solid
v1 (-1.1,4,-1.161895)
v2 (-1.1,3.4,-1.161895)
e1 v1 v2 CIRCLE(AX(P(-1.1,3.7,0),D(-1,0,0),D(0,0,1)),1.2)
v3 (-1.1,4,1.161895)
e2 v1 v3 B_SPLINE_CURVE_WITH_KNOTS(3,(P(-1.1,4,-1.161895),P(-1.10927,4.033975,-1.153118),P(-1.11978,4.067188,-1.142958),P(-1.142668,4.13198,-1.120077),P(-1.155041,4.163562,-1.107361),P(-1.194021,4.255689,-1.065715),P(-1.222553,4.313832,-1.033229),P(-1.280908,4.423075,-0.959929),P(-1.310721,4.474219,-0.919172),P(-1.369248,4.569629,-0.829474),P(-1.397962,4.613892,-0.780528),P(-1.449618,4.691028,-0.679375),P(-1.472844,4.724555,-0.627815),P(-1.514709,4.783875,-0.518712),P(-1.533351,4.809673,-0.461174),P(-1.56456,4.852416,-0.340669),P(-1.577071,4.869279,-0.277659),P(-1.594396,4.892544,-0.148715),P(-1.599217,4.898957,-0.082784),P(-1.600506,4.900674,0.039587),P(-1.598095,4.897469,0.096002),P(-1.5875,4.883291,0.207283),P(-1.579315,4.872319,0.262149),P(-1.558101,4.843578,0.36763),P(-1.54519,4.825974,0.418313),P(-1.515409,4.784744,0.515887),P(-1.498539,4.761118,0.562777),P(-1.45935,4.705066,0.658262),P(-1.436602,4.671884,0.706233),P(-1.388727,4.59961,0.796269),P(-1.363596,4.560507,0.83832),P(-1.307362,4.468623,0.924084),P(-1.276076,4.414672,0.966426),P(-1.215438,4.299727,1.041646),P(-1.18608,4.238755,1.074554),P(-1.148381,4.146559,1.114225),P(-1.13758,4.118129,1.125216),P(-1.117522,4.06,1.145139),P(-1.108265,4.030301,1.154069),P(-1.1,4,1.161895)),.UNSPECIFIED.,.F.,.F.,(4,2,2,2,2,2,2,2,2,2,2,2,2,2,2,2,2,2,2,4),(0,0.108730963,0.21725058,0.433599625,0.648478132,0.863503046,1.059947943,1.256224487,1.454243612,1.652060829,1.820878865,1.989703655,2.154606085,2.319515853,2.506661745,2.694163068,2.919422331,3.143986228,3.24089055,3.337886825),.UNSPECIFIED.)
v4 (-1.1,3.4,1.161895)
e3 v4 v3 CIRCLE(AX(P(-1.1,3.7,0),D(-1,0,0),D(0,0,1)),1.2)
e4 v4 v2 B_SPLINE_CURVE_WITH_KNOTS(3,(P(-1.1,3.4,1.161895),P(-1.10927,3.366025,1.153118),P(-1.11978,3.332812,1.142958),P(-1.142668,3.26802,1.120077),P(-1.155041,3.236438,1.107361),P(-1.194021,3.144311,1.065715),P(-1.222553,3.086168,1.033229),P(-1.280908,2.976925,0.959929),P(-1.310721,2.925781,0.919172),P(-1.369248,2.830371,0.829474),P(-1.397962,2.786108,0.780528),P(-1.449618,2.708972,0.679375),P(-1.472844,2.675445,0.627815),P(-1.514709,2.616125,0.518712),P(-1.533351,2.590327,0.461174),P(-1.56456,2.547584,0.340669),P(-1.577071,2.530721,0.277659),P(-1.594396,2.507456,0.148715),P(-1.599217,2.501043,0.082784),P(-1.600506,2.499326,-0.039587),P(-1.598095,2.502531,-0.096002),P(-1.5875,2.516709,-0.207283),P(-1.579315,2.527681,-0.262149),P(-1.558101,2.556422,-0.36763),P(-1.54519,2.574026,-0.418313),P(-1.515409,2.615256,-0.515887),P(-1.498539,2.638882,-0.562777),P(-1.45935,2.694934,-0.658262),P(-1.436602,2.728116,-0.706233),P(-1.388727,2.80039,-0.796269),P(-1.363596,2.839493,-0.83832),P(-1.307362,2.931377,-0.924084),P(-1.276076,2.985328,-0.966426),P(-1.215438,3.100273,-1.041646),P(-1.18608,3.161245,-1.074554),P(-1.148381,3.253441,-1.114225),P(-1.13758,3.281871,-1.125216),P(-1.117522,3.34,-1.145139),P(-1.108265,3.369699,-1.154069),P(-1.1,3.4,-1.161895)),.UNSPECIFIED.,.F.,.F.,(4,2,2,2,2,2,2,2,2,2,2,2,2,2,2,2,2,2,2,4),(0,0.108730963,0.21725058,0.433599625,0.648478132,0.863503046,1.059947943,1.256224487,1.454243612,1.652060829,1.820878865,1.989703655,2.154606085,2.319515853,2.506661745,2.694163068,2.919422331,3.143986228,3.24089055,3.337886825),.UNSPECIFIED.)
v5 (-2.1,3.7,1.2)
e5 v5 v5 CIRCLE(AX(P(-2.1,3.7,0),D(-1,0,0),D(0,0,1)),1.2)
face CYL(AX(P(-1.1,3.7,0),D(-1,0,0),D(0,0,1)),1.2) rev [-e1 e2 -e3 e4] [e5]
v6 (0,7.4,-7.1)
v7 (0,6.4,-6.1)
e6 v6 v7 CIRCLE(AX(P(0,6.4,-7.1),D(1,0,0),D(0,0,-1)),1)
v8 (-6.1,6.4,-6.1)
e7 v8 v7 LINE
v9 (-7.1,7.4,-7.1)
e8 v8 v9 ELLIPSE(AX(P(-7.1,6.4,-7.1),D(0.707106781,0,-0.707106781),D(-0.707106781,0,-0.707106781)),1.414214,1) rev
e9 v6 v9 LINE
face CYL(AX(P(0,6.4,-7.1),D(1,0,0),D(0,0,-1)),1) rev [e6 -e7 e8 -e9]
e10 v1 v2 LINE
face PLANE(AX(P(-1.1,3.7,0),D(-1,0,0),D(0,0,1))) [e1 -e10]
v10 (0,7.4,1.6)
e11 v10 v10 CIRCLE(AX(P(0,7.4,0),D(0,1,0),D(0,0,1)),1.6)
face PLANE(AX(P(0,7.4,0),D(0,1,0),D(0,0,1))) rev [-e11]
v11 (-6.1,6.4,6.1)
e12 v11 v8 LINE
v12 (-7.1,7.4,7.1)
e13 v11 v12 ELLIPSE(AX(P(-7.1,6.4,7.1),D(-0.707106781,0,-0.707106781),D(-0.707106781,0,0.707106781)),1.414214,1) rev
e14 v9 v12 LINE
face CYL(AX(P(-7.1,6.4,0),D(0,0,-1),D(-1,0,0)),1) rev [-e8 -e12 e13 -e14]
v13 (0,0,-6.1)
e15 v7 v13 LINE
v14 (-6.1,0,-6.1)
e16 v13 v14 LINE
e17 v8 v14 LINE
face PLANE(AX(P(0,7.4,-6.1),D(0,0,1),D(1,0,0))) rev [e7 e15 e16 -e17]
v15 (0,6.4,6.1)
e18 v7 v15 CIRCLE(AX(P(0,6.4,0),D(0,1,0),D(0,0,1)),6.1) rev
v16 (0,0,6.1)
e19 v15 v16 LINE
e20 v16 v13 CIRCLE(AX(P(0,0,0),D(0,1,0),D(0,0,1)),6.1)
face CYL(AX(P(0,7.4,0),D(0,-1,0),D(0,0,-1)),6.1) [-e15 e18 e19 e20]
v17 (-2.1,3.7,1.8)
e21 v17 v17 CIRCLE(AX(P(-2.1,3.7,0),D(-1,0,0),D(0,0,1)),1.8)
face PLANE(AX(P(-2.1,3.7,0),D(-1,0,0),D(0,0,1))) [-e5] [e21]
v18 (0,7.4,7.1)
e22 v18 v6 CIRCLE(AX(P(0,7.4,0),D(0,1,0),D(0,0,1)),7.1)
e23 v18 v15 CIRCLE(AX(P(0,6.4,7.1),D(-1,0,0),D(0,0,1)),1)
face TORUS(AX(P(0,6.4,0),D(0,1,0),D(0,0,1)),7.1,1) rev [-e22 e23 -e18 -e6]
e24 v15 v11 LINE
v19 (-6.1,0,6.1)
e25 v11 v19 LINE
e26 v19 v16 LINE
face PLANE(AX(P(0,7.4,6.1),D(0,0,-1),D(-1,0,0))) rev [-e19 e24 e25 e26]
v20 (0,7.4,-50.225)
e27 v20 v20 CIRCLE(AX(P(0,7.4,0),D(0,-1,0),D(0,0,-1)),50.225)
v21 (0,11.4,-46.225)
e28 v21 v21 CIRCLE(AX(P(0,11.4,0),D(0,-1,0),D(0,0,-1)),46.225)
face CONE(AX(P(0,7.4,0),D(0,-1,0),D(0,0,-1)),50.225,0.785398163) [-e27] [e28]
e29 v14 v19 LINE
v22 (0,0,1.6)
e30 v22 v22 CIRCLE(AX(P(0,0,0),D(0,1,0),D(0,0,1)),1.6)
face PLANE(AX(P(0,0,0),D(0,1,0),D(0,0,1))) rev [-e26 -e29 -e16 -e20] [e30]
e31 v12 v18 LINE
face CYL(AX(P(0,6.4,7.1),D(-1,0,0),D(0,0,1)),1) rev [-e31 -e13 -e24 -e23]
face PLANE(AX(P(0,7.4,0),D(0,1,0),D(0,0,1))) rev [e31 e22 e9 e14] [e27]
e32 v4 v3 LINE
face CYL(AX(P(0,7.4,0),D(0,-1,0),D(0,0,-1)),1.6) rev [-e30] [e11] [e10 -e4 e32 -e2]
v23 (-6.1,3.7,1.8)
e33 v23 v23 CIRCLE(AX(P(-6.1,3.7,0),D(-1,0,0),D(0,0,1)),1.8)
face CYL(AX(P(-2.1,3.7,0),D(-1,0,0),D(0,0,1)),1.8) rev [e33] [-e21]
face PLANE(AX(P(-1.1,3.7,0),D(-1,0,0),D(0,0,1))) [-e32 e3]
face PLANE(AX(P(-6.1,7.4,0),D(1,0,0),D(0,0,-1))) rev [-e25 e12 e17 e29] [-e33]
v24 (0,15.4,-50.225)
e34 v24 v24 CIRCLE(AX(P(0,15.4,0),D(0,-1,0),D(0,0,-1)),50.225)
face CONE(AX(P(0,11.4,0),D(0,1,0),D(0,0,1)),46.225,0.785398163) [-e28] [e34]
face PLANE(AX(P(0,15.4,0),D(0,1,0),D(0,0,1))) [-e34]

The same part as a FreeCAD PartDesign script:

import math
import FreeCAD as App
import Part
import Sketcher

V = App.Vector
Q = App.Units.Quantity


def edges_at(feature, points):
    """Names of the edges that pass closest to the given points."""
    edges = feature.Shape.Edges
    near = lambda p: min(range(len(edges)), key=lambda i: edges[i].distToShape(Part.Vertex(*p))[0])
    return sorted({f"Edge{near(p) + 1}" for p in points})


def add_polygon(sketch, points):
    """Adds a closed chain of lines whose ends are joined by coincident constraints."""
    first, n = sketch.GeometryCount, len(points)
    for a, b in zip(points, points[1:] + points[:1]):
        sketch.addGeometry(Part.LineSegment(App.Vector(*a, 0), App.Vector(*b, 0)), False)
    for i in range(n):
        sketch.addConstraint(Sketcher.Constraint("Coincident", first + i, 2, first + (i + 1) % n, 1))

doc = App.newDocument("Part")
body = doc.addObject("PartDesign::Body", "Body")

sketch1 = body.newObject("Sketcher::SketchObject", "Sketch")
sketch1.AttachmentSupport = (doc.getObject("XZ_Plane"), [""])
sketch1.MapMode = "FlatFace"
sketch1.addGeometry([
    Part.LineSegment(V(0, -6.1, 0), V(-6.1, -6.1, 0)),
    Part.LineSegment(V(-6.1, -6.1, 0), V(-6.1, 6.1, 0)),
    Part.LineSegment(V(-6.1, 6.1, 0), V(0, 6.1, 0)),
    Part.ArcOfCircle(Part.Circle(V(0, 0, 0), V(0, 0, 1), 6.1), math.radians(-90), math.radians(90)),
    Part.Circle(V(0, 0, 0), V(0, 0, 1), 1.6),
], False)
sketch1.addConstraint([
    Sketcher.Constraint("Coincident", 0, 2, 1, 1),
    Sketcher.Constraint("Coincident", 1, 2, 2, 1),
    Sketcher.Constraint("Tangent", 2, 2, 3, 2),
    Sketcher.Constraint("Tangent", 3, 1, 0, 1),
    Sketcher.Constraint("Horizontal", 0),
    Sketcher.Constraint("Vertical", 1),
    Sketcher.Constraint("Horizontal", 2),
    Sketcher.Constraint("Coincident", 3, 3, -1, 1),
    Sketcher.Constraint("Coincident", 4, 3, -1, 1),
    Sketcher.Constraint("Diameter", 4, Q("3.2 mm")),
    Sketcher.Constraint("Radius", 3, Q("6.1 mm")),
    Sketcher.Constraint("DistanceX", 0, 2, 0, 1, Q("6.1 mm")),
])
pad1 = body.newObject("PartDesign::Pad", "Pad")
pad1.Profile = sketch1
pad1.Length = 7.4
pad1.Reversed = True

sketch2 = body.newObject("Sketcher::SketchObject", "Sketch001")
sketch2.AttachmentSupport = (doc.getObject("YZ_Plane"), [""])
sketch2.MapMode = "FlatFace"
sketch2.AttachmentOffset = App.Placement(V(0, 0, -6.1), App.Rotation())
sketch2.addGeometry(Part.Circle(V(3.7, 0, 0), V(0, 0, 1), 1.8), False)
sketch2.addConstraint([
    Sketcher.Constraint("PointOnObject", 0, 3, -1),
    Sketcher.Constraint("Diameter", 0, Q("3.6 mm")),
    Sketcher.Constraint("DistanceX", -1, 1, 0, 3, Q("3.7 mm")),
])
pocket1 = body.newObject("PartDesign::Pocket", "Pocket")
pocket1.Profile = sketch2
pocket1.Length = 4
pocket1.Reversed = True

sketch3 = body.newObject("Sketcher::SketchObject", "Sketch002")
sketch3.AttachmentSupport = (doc.getObject("YZ_Plane"), [""])
sketch3.MapMode = "FlatFace"
sketch3.AttachmentOffset = App.Placement(V(0, 0, -2.1), App.Rotation())
sketch3.addGeometry(Part.Circle(V(3.7, 0, 0), V(0, 0, 1), 1.2), False)
sketch3.addConstraint([
    Sketcher.Constraint("PointOnObject", 0, 3, -1),
    Sketcher.Constraint("Diameter", 0, Q("2.4 mm")),
    Sketcher.Constraint("DistanceX", -1, 1, 0, 3, Q("3.7 mm")),
])
pocket2 = body.newObject("PartDesign::Pocket", "Pocket001")
pocket2.Profile = sketch3
pocket2.Length = 1
pocket2.Reversed = True

sketch4 = body.newObject("Sketcher::SketchObject", "Sketch003")
sketch4.AttachmentSupport = (doc.getObject("XZ_Plane"), [""])
sketch4.MapMode = "FlatFace"
sketch4.AttachmentOffset = App.Placement(V(0, 0, -7.4), App.Rotation())
sketch4.addGeometry(Part.Circle(V(0, 0, 0), V(0, 0, 1), 52), False)
sketch4.addConstraint([
    Sketcher.Constraint("Coincident", 0, 3, -1, 1),
    Sketcher.Constraint("Diameter", 0, Q("104.45 mm")),
])
pad2 = body.newObject("PartDesign::Pad", "Pad001")
pad2.Profile = sketch4
pad2.Length = 8
pad2.Reversed = True

sketch5 = body.newObject("Sketcher::SketchObject", "Sketch004")
sketch5.AttachmentSupport = (doc.getObject("YZ_Plane"), [""])
sketch5.MapMode = "FlatFace"
add_polygon(sketch5, [(7.4, 50.2), (11.4, 46.2), (15.4, 50.2), (15.4, 52.2), (7.4, 52.2)])
sketch5.addConstraint([
    Sketcher.Constraint("Vertical", 2),
    Sketcher.Constraint("Horizontal", 3),
    Sketcher.Constraint("Vertical", 4),
    Sketcher.Constraint("Perpendicular", 0, 1),
    Sketcher.Constraint("Horizontal", 1, 2, 4, 2),
    Sketcher.Constraint("Equal", 0, 1),
    Sketcher.Constraint("DistanceX", 3, 2, 3, 1, Q("8 mm")),
    Sketcher.Constraint("DistanceY", 2, 1, 2, 2, Q("2 mm")),
    Sketcher.Constraint("DistanceX", -1, 1, 0, 2, Q("11.4 mm")),
    Sketcher.Constraint("DistanceY", -1, 1, 0, 2, Q("46.225 mm")),
])
groove = body.newObject("PartDesign::Groove", "Groove")
groove.Profile = sketch5
groove.ReferenceAxis = (sketch5, ["H_Axis"])
groove.Angle = 360
doc.recompute()

fillet = body.newObject("PartDesign::Fillet", "Fillet")
fillet.Base = (groove, edges_at(groove, [
    (6.1, 7.4, 0),
    (-3.05, 7.4, -6.1),
    (-6.1, 7.4, 0),
    (-3.05, 7.4, 6.1),
]))
fillet.Radius = 1

doc.recompute()
